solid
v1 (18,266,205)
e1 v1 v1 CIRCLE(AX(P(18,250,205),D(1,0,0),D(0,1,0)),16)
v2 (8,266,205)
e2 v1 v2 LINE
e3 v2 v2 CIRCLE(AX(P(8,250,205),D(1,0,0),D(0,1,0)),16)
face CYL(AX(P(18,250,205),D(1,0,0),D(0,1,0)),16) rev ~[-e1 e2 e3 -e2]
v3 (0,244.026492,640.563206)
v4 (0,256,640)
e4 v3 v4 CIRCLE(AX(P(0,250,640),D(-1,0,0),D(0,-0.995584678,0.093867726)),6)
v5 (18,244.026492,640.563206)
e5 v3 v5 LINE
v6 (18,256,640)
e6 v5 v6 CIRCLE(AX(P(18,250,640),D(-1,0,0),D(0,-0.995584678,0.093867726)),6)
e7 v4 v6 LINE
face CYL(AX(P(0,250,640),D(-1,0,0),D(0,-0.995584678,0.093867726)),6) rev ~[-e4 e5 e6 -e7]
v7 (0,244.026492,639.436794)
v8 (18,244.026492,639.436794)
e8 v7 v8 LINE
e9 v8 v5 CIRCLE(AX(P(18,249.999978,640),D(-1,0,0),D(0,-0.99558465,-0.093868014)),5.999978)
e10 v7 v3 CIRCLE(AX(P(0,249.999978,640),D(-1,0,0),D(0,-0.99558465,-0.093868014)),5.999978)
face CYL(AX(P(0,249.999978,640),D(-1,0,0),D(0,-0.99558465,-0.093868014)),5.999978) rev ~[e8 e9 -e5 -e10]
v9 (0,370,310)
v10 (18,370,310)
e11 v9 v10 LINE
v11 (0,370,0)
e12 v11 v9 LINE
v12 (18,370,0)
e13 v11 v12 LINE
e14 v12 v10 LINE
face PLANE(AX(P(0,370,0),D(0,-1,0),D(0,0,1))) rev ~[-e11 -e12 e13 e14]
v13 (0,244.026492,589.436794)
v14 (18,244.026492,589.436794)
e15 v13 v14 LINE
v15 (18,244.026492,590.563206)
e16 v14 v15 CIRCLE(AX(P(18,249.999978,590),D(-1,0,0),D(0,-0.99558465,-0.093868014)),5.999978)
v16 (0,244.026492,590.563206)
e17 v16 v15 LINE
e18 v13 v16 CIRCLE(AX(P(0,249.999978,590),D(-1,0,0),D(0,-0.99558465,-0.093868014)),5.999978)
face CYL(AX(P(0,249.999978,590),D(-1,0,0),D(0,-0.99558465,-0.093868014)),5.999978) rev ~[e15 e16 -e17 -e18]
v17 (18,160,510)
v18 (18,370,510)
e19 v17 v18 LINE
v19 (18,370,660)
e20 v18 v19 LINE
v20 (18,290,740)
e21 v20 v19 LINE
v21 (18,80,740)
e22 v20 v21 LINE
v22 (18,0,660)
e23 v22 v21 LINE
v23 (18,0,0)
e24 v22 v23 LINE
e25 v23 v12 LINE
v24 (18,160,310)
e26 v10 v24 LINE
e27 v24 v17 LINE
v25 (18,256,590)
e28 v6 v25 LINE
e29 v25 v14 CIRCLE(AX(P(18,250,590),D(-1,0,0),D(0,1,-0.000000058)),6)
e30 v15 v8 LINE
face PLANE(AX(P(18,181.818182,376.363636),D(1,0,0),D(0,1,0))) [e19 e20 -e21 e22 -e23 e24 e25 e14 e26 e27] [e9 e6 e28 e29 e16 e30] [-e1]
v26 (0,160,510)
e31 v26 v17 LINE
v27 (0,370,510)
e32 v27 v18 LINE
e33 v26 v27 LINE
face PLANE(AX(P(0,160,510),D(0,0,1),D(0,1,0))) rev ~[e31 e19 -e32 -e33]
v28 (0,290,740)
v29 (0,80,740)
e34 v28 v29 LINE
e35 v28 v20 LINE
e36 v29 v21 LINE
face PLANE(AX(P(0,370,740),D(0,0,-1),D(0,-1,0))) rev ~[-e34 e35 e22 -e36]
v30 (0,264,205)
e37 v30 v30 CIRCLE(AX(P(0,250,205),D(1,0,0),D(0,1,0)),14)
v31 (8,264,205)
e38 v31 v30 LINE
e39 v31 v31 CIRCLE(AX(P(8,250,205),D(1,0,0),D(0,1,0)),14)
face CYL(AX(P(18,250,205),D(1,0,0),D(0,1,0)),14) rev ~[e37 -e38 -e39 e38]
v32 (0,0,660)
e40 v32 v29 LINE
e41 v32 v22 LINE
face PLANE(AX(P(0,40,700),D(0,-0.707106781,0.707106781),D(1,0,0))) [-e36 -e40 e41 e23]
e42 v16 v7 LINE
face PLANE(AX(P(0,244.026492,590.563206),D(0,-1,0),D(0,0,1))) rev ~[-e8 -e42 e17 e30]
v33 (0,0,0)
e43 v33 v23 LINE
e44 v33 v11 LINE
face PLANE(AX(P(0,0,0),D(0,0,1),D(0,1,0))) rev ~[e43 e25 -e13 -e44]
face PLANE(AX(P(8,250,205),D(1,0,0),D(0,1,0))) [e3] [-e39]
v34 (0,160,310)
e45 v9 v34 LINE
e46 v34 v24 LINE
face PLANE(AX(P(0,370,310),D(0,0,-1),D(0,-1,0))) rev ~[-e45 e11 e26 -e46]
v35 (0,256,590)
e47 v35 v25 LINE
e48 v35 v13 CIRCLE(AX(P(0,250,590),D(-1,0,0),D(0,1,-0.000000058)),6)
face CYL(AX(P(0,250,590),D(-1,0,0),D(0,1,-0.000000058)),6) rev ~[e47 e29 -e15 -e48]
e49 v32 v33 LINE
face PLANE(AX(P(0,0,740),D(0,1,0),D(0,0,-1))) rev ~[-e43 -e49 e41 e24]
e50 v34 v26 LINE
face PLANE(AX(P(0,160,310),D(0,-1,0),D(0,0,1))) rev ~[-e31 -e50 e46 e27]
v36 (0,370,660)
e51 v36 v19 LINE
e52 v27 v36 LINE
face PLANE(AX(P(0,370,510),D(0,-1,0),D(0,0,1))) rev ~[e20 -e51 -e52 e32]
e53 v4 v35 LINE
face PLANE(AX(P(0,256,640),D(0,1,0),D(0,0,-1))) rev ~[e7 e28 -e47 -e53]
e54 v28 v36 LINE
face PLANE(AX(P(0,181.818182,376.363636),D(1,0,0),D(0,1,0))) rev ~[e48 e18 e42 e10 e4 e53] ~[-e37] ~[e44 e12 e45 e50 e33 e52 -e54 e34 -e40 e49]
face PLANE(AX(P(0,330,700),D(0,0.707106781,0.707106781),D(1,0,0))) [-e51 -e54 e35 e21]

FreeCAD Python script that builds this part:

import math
import FreeCAD as App
import Part
import Sketcher

V = App.Vector


def edges_at(feature, points):
    """Names of the edges that pass closest to the given points."""
    edges = feature.Shape.Edges
    near = lambda p: min(range(len(edges)), key=lambda i: edges[i].distToShape(Part.Vertex(*p))[0])
    return sorted({f"Edge{near(p) + 1}" for p in points})

doc = App.newDocument("Part")
body = doc.addObject("PartDesign::Body", "Body")

# Sketch on YZ plane
sketch1 = doc.addObject("Sketcher::SketchObject", "Sketch")
body.addObject(sketch1)
sketch1.AttachmentSupport = (doc.YZ_Plane, [""])
sketch1.MapMode = "FlatFace"
sketch1.addGeometry(Part.LineSegment(V(0, 740, 0), V(0, 0, 0)), False)
sketch1.addGeometry(Part.LineSegment(V(0, 0, 0), V(370, 0, 0)), False)
sketch1.addGeometry(Part.LineSegment(V(370, 0, 0), V(370, 310, 0)), False)
sketch1.addGeometry(Part.LineSegment(V(370, 310, 0), V(160, 310, 0)), False)
sketch1.addGeometry(Part.LineSegment(V(160, 310, 0), V(160, 510, 0)), False)
sketch1.addGeometry(Part.LineSegment(V(160, 510, 0), V(370, 510, 0)), False)
sketch1.addGeometry(Part.LineSegment(V(370, 510, 0), V(370, 740, 0)), False)
sketch1.addGeometry(Part.LineSegment(V(370, 740, 0), V(0, 740, 0)), False)
sketch1.addGeometry(Part.ArcOfCircle(Part.Circle(V(249.999978, 640, 0), V(0, 0, 1), 5.999978), math.radians(174.613829), math.radians(185.386171)), False)
sketch1.addGeometry(Part.ArcOfCircle(Part.Circle(V(250, 640, 0), V(0, 0, 1), 6), math.radians(0.000003), math.radians(174.613846)), False)
sketch1.addGeometry(Part.LineSegment(V(256, 640, 0), V(256, 590, 0)), False)
sketch1.addGeometry(Part.ArcOfCircle(Part.Circle(V(250, 590, 0), V(0, 0, 1), 6), math.radians(-174.613846), math.radians(-0.000003)), False)
sketch1.addGeometry(Part.ArcOfCircle(Part.Circle(V(249.999978, 590, 0), V(0, 0, 1), 5.999978), math.radians(174.613829), math.radians(185.386171)), False)
sketch1.addGeometry(Part.LineSegment(V(244.026492, 590.563206, 0), V(244.026492, 639.436794, 0)), False)
sketch1.addConstraint(Sketcher.Constraint("Coincident", 0, 2, 1, 1))
sketch1.addConstraint(Sketcher.Constraint("Coincident", 1, 2, 2, 1))
sketch1.addConstraint(Sketcher.Constraint("Coincident", 2, 2, 3, 1))
sketch1.addConstraint(Sketcher.Constraint("Coincident", 3, 2, 4, 1))
sketch1.addConstraint(Sketcher.Constraint("Coincident", 4, 2, 5, 1))
sketch1.addConstraint(Sketcher.Constraint("Coincident", 5, 2, 6, 1))
sketch1.addConstraint(Sketcher.Constraint("Coincident", 6, 2, 7, 1))
sketch1.addConstraint(Sketcher.Constraint("Coincident", 7, 2, 0, 1))
sketch1.addConstraint(Sketcher.Constraint("Coincident", 8, 1, 9, 2))
sketch1.addConstraint(Sketcher.Constraint("Coincident", 9, 1, 10, 1))
sketch1.addConstraint(Sketcher.Constraint("Coincident", 10, 2, 11, 2))
sketch1.addConstraint(Sketcher.Constraint("Coincident", 11, 1, 12, 2))
sketch1.addConstraint(Sketcher.Constraint("Coincident", 12, 1, 13, 1))
sketch1.addConstraint(Sketcher.Constraint("Coincident", 13, 2, 8, 2))
sketch1.addConstraint(Sketcher.Constraint("Vertical", 0))
sketch1.addConstraint(Sketcher.Constraint("Horizontal", 1))
sketch1.addConstraint(Sketcher.Constraint("Vertical", 2))
sketch1.addConstraint(Sketcher.Constraint("Horizontal", 3))
sketch1.addConstraint(Sketcher.Constraint("Vertical", 4))
sketch1.addConstraint(Sketcher.Constraint("Horizontal", 5))
sketch1.addConstraint(Sketcher.Constraint("Vertical", 6))
sketch1.addConstraint(Sketcher.Constraint("Horizontal", 7))
sketch1.addConstraint(Sketcher.Constraint("Vertical", 10))
sketch1.addConstraint(Sketcher.Constraint("Vertical", 13))
sketch1.addConstraint(Sketcher.Constraint("Coincident", 0, 2, -1, 1))
sketch1.addConstraint(Sketcher.Constraint("Radius", 9, 6.0))
sketch1.addConstraint(Sketcher.Constraint("Radius", 11, 6.0))
sketch1.addConstraint(Sketcher.Constraint("DistanceX", 1, 1, 1, 2, 370.0))
sketch1.addConstraint(Sketcher.Constraint("DistanceX", 3, 2, 3, 1, 210.0))
sketch1.addConstraint(Sketcher.Constraint("DistanceX", 5, 1, 5, 2, 210.0))
sketch1.addConstraint(Sketcher.Constraint("DistanceY", 0, 2, 0, 1, 740.0))
sketch1.addConstraint(Sketcher.Constraint("DistanceY", 2, 1, 2, 2, 310.0))
sketch1.addConstraint(Sketcher.Constraint("DistanceY", 4, 1, 4, 2, 200.0))
sketch1.addConstraint(Sketcher.Constraint("DistanceY", 10, 2, 10, 1, 50.0))
sketch1.addConstraint(Sketcher.Constraint("DistanceY", -1, 1, 8, 3, 640.0))
sketch1.addConstraint(Sketcher.Constraint("DistanceX", -1, 1, 9, 3, 250.0))
sketch1.addConstraint(Sketcher.Constraint("DistanceY", -1, 1, 9, 3, 640.0))
sketch1.addConstraint(Sketcher.Constraint("DistanceY", -1, 1, 11, 3, 590.0))
sketch1.addConstraint(Sketcher.Constraint("DistanceY", -1, 1, 12, 3, 590.0))
sketch1.addConstraint(Sketcher.Constraint("DistanceY", -1, 1, 9, 1, 640.0))
sketch1.addConstraint(Sketcher.Constraint("Radius", 8, 5.999978))
sketch1.addConstraint(Sketcher.Constraint("Radius", 12, 5.999978))
sketch1.addConstraint(Sketcher.Constraint("DistanceY", 13, 1, 13, 2, 48.873588))
sketch1.addConstraint(Sketcher.Constraint("DistanceX", 8, 1, 9, 3, 5.973508))
sketch1.addConstraint(Sketcher.Constraint("DistanceX", 11, 1, 11, 3, 5.973508))
pad1 = doc.addObject("PartDesign::Pad", "Pad")
body.addObject(pad1)
pad1.Profile = sketch1
pad1.Length = 18
doc.recompute()

chamfer = doc.addObject("PartDesign::Chamfer", "Chamfer")
body.addObject(chamfer)
chamfer.Base = (pad1, edges_at(pad1, [(9, 0, 740), (9, 370, 740)]))
chamfer.Size = 80

# Sketch on YZ plane
sketch2 = doc.addObject("Sketcher::SketchObject", "Sketch001")
body.addObject(sketch2)
sketch2.AttachmentSupport = (doc.YZ_Plane, [""])
sketch2.MapMode = "FlatFace"
sketch2.AttachmentOffset = App.Placement(V(0, 0, 18), App.Rotation())
sketch2.addGeometry(Part.Circle(V(250, 205, 0), V(0, 0, 1), 16), False)
sketch2.addConstraint(Sketcher.Constraint("Diameter", 0, 32.0))
sketch2.addConstraint(Sketcher.Constraint("DistanceX", -1, 1, 0, 3, 250.0))
sketch2.addConstraint(Sketcher.Constraint("DistanceY", -1, 1, 0, 3, 205.0))
pocket1 = doc.addObject("PartDesign::Pocket", "Pocket")
body.addObject(pocket1)
pocket1.Profile = sketch2
pocket1.Length = 10

# Sketch on YZ plane
sketch3 = doc.addObject("Sketcher::SketchObject", "Sketch002")
body.addObject(sketch3)
sketch3.AttachmentSupport = (doc.YZ_Plane, [""])
sketch3.MapMode = "FlatFace"
sketch3.AttachmentOffset = App.Placement(V(0, 0, 18), App.Rotation())
sketch3.addGeometry(Part.Circle(V(250, 205, 0), V(0, 0, 1), 14), False)
sketch3.addConstraint(Sketcher.Constraint("Diameter", 0, 28.0))
sketch3.addConstraint(Sketcher.Constraint("DistanceX", -1, 1, 0, 3, 250.0))
sketch3.addConstraint(Sketcher.Constraint("DistanceY", -1, 1, 0, 3, 205.0))
pocket2 = doc.addObject("PartDesign::Pocket", "Pocket001")
body.addObject(pocket2)
pocket2.Profile = sketch3
pocket2.Length = 18

doc.recompute()
